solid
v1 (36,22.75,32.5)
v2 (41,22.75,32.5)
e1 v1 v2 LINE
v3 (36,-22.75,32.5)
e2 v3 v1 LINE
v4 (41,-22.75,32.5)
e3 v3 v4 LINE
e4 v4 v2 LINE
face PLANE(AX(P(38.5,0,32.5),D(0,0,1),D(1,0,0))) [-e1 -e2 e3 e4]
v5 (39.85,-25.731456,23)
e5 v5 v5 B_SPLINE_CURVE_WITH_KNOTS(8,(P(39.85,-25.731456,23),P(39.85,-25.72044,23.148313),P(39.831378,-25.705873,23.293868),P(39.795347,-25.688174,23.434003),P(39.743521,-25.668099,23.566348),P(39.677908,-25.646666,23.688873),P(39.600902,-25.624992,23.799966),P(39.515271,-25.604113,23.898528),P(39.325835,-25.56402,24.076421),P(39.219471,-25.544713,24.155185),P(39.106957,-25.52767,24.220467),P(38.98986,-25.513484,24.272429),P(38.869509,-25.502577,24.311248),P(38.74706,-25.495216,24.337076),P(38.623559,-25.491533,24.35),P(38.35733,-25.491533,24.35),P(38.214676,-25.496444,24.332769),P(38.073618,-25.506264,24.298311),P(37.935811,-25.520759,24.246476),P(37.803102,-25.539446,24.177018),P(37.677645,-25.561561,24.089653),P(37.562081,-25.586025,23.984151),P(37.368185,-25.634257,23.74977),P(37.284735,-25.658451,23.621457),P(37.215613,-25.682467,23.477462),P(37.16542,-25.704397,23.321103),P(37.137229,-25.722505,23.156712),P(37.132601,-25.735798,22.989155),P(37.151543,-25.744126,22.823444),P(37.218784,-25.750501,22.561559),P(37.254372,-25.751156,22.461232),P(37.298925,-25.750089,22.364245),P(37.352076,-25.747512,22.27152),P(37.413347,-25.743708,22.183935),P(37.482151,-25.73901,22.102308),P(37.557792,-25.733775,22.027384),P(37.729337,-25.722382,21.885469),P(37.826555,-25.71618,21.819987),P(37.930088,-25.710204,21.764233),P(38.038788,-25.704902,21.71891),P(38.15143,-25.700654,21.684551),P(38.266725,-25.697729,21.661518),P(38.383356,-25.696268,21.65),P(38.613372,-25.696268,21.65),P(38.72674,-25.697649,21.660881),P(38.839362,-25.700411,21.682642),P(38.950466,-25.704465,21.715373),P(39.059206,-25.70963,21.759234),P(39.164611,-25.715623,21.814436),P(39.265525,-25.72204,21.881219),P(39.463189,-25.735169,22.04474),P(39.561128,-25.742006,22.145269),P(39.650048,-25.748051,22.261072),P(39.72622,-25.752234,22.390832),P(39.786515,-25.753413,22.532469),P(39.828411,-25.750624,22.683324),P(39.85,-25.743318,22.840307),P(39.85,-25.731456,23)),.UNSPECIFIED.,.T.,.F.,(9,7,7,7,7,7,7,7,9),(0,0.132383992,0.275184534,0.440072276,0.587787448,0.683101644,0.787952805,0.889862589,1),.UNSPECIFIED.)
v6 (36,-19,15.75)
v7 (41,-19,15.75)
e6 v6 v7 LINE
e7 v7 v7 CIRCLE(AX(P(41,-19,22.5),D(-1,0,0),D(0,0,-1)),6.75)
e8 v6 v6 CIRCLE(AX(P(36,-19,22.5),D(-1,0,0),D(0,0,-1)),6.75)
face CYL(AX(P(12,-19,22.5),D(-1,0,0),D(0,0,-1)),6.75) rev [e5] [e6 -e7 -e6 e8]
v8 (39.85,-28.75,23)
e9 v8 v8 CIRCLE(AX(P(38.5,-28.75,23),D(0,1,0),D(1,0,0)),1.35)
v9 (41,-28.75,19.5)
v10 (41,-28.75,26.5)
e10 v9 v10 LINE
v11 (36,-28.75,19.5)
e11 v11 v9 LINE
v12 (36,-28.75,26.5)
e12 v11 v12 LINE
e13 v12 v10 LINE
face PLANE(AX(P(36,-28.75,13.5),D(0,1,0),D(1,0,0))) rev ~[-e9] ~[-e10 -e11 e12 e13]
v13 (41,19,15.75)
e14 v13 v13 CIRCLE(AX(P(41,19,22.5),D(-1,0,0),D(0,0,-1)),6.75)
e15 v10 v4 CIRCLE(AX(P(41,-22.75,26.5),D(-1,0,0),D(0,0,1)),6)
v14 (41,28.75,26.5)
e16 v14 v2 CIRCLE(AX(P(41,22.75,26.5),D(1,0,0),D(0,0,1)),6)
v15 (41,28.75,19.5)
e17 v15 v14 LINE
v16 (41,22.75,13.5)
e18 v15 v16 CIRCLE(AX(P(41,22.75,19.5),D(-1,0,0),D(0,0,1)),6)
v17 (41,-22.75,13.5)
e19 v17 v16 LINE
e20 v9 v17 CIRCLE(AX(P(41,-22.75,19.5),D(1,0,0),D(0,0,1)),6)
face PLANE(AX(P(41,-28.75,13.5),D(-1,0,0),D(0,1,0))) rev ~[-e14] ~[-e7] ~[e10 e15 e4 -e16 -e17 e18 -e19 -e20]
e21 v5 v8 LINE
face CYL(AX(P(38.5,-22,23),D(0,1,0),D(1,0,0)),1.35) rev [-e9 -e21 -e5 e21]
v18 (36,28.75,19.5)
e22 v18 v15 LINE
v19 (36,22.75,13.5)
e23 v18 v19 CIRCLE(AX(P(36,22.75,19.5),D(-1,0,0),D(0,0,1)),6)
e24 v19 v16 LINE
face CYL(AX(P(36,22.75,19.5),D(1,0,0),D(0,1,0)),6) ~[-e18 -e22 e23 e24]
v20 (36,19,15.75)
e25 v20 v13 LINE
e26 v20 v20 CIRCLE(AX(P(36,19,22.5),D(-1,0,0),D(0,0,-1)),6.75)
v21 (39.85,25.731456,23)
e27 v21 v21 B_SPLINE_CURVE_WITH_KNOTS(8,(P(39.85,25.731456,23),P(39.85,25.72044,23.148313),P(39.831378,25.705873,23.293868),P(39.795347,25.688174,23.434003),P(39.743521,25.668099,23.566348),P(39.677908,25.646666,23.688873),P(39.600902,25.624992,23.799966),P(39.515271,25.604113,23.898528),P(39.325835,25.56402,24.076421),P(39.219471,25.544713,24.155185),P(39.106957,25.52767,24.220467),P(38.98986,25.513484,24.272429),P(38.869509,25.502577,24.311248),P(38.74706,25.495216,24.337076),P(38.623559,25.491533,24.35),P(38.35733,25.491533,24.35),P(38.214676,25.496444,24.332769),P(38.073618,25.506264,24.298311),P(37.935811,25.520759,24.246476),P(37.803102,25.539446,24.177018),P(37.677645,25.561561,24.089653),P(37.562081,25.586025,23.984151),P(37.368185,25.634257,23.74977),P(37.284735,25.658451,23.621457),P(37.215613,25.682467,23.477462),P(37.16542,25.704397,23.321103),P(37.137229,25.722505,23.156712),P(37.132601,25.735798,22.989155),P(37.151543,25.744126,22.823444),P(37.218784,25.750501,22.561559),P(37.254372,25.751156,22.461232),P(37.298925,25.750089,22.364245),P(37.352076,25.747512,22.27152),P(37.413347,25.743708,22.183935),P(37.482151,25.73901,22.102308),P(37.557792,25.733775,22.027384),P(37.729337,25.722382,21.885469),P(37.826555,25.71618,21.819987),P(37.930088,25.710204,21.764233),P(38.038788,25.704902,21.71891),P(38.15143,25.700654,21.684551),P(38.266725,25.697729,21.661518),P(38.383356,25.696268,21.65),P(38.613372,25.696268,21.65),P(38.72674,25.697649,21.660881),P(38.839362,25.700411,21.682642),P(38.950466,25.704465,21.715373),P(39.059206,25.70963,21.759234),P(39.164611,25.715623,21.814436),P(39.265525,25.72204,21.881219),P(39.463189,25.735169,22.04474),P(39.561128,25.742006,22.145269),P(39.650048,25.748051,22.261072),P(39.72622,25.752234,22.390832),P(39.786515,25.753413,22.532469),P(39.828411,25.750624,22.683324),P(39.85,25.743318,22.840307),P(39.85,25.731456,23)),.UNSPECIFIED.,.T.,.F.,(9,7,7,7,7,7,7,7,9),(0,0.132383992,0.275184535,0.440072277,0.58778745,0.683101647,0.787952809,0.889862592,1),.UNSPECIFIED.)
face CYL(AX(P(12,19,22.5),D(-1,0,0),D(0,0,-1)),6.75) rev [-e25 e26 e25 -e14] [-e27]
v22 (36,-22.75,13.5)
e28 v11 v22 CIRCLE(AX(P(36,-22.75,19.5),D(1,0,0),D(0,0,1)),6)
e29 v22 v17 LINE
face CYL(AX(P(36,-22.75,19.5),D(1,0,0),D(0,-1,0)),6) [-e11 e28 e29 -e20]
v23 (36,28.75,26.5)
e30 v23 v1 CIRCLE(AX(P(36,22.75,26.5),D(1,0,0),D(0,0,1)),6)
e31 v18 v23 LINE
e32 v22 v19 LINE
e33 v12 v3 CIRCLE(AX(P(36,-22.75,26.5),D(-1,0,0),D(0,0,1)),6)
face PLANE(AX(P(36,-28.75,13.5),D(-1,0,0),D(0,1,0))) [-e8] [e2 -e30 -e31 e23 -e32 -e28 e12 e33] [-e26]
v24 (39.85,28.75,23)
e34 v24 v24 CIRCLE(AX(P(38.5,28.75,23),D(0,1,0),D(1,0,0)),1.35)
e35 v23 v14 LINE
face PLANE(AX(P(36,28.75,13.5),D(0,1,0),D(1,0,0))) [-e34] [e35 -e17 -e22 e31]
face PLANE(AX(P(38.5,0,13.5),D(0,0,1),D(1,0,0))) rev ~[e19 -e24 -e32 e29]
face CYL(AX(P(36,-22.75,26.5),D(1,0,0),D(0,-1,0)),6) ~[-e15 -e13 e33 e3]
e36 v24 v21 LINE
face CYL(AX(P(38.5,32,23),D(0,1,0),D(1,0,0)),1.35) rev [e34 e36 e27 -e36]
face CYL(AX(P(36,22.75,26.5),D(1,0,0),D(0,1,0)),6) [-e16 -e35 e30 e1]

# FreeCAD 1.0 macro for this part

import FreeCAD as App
import Part
import Sketcher

V = App.Vector


def edges_at(feature, points):
    """Names of the edges that pass closest to the given points."""
    edges = feature.Shape.Edges
    near = lambda p: min(range(len(edges)), key=lambda i: edges[i].distToShape(Part.Vertex(*p))[0])
    return sorted({f"Edge{near(p) + 1}" for p in points})

doc = App.newDocument("Part")
body = doc.addObject("PartDesign::Body", "Body")

# Sketch on XZ plane
sketch1 = body.newObject("Sketcher::SketchObject", "Sketch")
sketch1.AttachmentSupport = (doc.getObject("XZ_Plane"), [""])
sketch1.MapMode = "FlatFace"
sketch1.AttachmentOffset = App.Placement(V(0, 0, 22), App.Rotation())
sketch1.addGeometry(Part.Circle(V(2.5, 23, 0), V(0, 0, 1), 1.4), False)
sketch1.addConstraint(Sketcher.Constraint("Diameter", 0, 2.7))
sketch1.addConstraint(Sketcher.Constraint("DistanceY", -1, 1, 0, 3, 23.0))
sketch1.addConstraint(Sketcher.Constraint("DistanceX", -1, 1, 0, 3, 2.5))
pad1 = body.newObject("PartDesign::Pad", "Pad")
pad1.Profile = sketch1
pad1.Length = 10
body2 = doc.addObject("PartDesign::Body", "Body001")

# Sketch on XZ plane
sketch2 = body2.newObject("Sketcher::SketchObject", "Sketch001")
sketch2.AttachmentSupport = (doc.getObject("XZ_Plane001"), [""])
sketch2.MapMode = "FlatFace"
sketch2.AttachmentOffset = App.Placement(V(0, 0, -32), App.Rotation())
sketch2.addGeometry(Part.Circle(V(2.5, 23, 0), V(0, 0, 1), 1.4), False)
sketch2.addConstraint(Sketcher.Constraint("Diameter", 0, 2.7))
sketch2.addConstraint(Sketcher.Constraint("DistanceY", -1, 1, 0, 3, 23.0))
sketch2.addConstraint(Sketcher.Constraint("DistanceX", -1, 1, 0, 3, 2.5))
pad2 = body2.newObject("PartDesign::Pad", "Pad001")
pad2.Profile = sketch2
pad2.Length = 10
body3 = doc.addObject("PartDesign::Body", "Body002")

# Sketch on YZ plane
sketch3 = body3.newObject("Sketcher::SketchObject", "Sketch002")
sketch3.AttachmentSupport = (doc.getObject("YZ_Plane002"), [""])
sketch3.MapMode = "FlatFace"
sketch3.AttachmentOffset = App.Placement(V(0, 0, -24), App.Rotation())
sketch3.addGeometry(Part.Circle(V(19, 22, 0), V(0, 0, 1), 7), False)
sketch3.addConstraint(Sketcher.Constraint("Diameter", 0, 13.5))
sketch3.addConstraint(Sketcher.Constraint("DistanceX", -1, 1, 0, 3, 19.0))
sketch3.addConstraint(Sketcher.Constraint("DistanceY", -1, 1, 0, 3, 22.5))
pad3 = body3.newObject("PartDesign::Pad", "Pad002")
pad3.Profile = sketch3
pad3.Length = 50
body4 = doc.addObject("PartDesign::Body", "Body003")

# Sketch on YZ plane
sketch4 = body4.newObject("Sketcher::SketchObject", "Sketch003")
sketch4.AttachmentSupport = (doc.getObject("YZ_Plane003"), [""])
sketch4.MapMode = "FlatFace"
sketch4.AttachmentOffset = App.Placement(V(0, 0, -24), App.Rotation())
sketch4.addGeometry(Part.Circle(V(-19, 22, 0), V(0, 0, 1), 7), False)
sketch4.addConstraint(Sketcher.Constraint("Diameter", 0, 13.5))
sketch4.addConstraint(Sketcher.Constraint("DistanceX", 0, 3, -1, 1, 19.0))
sketch4.addConstraint(Sketcher.Constraint("DistanceY", -1, 1, 0, 3, 22.5))
pad4 = body4.newObject("PartDesign::Pad", "Pad003")
pad4.Profile = sketch4
pad4.Length = 50
body5 = doc.addObject("PartDesign::Body", "Body004")

# Sketch on XY plane
sketch5 = body5.newObject("Sketcher::SketchObject", "Sketch004")
sketch5.AttachmentSupport = (doc.getObject("XY_Plane004"), [""])
sketch5.MapMode = "FlatFace"
sketch5.AttachmentOffset = App.Placement(V(0, 0, 13.5), App.Rotation())
sketch5.addGeometry(Part.LineSegment(V(0, 29, 0), V(0, -29, 0)), False)
sketch5.addGeometry(Part.LineSegment(V(0, -29, 0), V(5, -29, 0)), False)
sketch5.addGeometry(Part.LineSegment(V(5, -29, 0), V(5, 29, 0)), False)
sketch5.addGeometry(Part.LineSegment(V(5, 29, 0), V(0, 29, 0)), False)
sketch5.addConstraint(Sketcher.Constraint("Coincident", 0, 2, 1, 1))
sketch5.addConstraint(Sketcher.Constraint("Coincident", 1, 2, 2, 1))
sketch5.addConstraint(Sketcher.Constraint("Coincident", 2, 2, 3, 1))
sketch5.addConstraint(Sketcher.Constraint("Coincident", 3, 2, 0, 1))
sketch5.addConstraint(Sketcher.Constraint("Vertical", 0))
sketch5.addConstraint(Sketcher.Constraint("Horizontal", 1))
sketch5.addConstraint(Sketcher.Constraint("Vertical", 2))
sketch5.addConstraint(Sketcher.Constraint("Horizontal", 3))
sketch5.addConstraint(Sketcher.Constraint("Symmetric", 0, 2, 3, 2, -1, 1))
sketch5.addConstraint(Sketcher.Constraint("DistanceX", 1, 1, 1, 2, 5.0))
sketch5.addConstraint(Sketcher.Constraint("DistanceY", 0, 2, 0, 1, 57.5))
pad5 = body5.newObject("PartDesign::Pad", "Pad004")
pad5.Profile = sketch5
pad5.Length = 19
doc.recompute()

fillet = body5.newObject("PartDesign::Fillet", "Fillet")
fillet.Base = (pad5, edges_at(pad5, [
    (2.5, -28.75, 13.5),
    (2.5, -28.75, 32.5),
    (2.5, 28.75, 13.5),
    (2.5, 28.75, 32.5),
]))
fillet.Radius = 6
doc.recompute()

boolean = body5.newObject("PartDesign::Boolean", "Boolean")
boolean.Type = "Cut"
boolean.addObjects([body4])
doc.recompute()

boolean2 = body5.newObject("PartDesign::Boolean", "Boolean001")
boolean2.Type = "Cut"
boolean2.addObjects([body3])
doc.recompute()

boolean3 = body5.newObject("PartDesign::Boolean", "Boolean002")
boolean3.Type = "Cut"
boolean3.addObjects([body2])
doc.recompute()

boolean4 = body5.newObject("PartDesign::Boolean", "Boolean003")
boolean4.Type = "Cut"
boolean4.addObjects([body])
body6 = doc.addObject("PartDesign::Body", "Body005")
doc.recompute()

body5.Placement = App.Placement(V(36, 0, 0), App.Rotation(V(0, 0, 1), 0))
boolean5 = body6.newObject("PartDesign::Boolean", "Boolean004")
boolean5.Type = "Fuse"
boolean5.addObjects([body5])

doc.recompute()
